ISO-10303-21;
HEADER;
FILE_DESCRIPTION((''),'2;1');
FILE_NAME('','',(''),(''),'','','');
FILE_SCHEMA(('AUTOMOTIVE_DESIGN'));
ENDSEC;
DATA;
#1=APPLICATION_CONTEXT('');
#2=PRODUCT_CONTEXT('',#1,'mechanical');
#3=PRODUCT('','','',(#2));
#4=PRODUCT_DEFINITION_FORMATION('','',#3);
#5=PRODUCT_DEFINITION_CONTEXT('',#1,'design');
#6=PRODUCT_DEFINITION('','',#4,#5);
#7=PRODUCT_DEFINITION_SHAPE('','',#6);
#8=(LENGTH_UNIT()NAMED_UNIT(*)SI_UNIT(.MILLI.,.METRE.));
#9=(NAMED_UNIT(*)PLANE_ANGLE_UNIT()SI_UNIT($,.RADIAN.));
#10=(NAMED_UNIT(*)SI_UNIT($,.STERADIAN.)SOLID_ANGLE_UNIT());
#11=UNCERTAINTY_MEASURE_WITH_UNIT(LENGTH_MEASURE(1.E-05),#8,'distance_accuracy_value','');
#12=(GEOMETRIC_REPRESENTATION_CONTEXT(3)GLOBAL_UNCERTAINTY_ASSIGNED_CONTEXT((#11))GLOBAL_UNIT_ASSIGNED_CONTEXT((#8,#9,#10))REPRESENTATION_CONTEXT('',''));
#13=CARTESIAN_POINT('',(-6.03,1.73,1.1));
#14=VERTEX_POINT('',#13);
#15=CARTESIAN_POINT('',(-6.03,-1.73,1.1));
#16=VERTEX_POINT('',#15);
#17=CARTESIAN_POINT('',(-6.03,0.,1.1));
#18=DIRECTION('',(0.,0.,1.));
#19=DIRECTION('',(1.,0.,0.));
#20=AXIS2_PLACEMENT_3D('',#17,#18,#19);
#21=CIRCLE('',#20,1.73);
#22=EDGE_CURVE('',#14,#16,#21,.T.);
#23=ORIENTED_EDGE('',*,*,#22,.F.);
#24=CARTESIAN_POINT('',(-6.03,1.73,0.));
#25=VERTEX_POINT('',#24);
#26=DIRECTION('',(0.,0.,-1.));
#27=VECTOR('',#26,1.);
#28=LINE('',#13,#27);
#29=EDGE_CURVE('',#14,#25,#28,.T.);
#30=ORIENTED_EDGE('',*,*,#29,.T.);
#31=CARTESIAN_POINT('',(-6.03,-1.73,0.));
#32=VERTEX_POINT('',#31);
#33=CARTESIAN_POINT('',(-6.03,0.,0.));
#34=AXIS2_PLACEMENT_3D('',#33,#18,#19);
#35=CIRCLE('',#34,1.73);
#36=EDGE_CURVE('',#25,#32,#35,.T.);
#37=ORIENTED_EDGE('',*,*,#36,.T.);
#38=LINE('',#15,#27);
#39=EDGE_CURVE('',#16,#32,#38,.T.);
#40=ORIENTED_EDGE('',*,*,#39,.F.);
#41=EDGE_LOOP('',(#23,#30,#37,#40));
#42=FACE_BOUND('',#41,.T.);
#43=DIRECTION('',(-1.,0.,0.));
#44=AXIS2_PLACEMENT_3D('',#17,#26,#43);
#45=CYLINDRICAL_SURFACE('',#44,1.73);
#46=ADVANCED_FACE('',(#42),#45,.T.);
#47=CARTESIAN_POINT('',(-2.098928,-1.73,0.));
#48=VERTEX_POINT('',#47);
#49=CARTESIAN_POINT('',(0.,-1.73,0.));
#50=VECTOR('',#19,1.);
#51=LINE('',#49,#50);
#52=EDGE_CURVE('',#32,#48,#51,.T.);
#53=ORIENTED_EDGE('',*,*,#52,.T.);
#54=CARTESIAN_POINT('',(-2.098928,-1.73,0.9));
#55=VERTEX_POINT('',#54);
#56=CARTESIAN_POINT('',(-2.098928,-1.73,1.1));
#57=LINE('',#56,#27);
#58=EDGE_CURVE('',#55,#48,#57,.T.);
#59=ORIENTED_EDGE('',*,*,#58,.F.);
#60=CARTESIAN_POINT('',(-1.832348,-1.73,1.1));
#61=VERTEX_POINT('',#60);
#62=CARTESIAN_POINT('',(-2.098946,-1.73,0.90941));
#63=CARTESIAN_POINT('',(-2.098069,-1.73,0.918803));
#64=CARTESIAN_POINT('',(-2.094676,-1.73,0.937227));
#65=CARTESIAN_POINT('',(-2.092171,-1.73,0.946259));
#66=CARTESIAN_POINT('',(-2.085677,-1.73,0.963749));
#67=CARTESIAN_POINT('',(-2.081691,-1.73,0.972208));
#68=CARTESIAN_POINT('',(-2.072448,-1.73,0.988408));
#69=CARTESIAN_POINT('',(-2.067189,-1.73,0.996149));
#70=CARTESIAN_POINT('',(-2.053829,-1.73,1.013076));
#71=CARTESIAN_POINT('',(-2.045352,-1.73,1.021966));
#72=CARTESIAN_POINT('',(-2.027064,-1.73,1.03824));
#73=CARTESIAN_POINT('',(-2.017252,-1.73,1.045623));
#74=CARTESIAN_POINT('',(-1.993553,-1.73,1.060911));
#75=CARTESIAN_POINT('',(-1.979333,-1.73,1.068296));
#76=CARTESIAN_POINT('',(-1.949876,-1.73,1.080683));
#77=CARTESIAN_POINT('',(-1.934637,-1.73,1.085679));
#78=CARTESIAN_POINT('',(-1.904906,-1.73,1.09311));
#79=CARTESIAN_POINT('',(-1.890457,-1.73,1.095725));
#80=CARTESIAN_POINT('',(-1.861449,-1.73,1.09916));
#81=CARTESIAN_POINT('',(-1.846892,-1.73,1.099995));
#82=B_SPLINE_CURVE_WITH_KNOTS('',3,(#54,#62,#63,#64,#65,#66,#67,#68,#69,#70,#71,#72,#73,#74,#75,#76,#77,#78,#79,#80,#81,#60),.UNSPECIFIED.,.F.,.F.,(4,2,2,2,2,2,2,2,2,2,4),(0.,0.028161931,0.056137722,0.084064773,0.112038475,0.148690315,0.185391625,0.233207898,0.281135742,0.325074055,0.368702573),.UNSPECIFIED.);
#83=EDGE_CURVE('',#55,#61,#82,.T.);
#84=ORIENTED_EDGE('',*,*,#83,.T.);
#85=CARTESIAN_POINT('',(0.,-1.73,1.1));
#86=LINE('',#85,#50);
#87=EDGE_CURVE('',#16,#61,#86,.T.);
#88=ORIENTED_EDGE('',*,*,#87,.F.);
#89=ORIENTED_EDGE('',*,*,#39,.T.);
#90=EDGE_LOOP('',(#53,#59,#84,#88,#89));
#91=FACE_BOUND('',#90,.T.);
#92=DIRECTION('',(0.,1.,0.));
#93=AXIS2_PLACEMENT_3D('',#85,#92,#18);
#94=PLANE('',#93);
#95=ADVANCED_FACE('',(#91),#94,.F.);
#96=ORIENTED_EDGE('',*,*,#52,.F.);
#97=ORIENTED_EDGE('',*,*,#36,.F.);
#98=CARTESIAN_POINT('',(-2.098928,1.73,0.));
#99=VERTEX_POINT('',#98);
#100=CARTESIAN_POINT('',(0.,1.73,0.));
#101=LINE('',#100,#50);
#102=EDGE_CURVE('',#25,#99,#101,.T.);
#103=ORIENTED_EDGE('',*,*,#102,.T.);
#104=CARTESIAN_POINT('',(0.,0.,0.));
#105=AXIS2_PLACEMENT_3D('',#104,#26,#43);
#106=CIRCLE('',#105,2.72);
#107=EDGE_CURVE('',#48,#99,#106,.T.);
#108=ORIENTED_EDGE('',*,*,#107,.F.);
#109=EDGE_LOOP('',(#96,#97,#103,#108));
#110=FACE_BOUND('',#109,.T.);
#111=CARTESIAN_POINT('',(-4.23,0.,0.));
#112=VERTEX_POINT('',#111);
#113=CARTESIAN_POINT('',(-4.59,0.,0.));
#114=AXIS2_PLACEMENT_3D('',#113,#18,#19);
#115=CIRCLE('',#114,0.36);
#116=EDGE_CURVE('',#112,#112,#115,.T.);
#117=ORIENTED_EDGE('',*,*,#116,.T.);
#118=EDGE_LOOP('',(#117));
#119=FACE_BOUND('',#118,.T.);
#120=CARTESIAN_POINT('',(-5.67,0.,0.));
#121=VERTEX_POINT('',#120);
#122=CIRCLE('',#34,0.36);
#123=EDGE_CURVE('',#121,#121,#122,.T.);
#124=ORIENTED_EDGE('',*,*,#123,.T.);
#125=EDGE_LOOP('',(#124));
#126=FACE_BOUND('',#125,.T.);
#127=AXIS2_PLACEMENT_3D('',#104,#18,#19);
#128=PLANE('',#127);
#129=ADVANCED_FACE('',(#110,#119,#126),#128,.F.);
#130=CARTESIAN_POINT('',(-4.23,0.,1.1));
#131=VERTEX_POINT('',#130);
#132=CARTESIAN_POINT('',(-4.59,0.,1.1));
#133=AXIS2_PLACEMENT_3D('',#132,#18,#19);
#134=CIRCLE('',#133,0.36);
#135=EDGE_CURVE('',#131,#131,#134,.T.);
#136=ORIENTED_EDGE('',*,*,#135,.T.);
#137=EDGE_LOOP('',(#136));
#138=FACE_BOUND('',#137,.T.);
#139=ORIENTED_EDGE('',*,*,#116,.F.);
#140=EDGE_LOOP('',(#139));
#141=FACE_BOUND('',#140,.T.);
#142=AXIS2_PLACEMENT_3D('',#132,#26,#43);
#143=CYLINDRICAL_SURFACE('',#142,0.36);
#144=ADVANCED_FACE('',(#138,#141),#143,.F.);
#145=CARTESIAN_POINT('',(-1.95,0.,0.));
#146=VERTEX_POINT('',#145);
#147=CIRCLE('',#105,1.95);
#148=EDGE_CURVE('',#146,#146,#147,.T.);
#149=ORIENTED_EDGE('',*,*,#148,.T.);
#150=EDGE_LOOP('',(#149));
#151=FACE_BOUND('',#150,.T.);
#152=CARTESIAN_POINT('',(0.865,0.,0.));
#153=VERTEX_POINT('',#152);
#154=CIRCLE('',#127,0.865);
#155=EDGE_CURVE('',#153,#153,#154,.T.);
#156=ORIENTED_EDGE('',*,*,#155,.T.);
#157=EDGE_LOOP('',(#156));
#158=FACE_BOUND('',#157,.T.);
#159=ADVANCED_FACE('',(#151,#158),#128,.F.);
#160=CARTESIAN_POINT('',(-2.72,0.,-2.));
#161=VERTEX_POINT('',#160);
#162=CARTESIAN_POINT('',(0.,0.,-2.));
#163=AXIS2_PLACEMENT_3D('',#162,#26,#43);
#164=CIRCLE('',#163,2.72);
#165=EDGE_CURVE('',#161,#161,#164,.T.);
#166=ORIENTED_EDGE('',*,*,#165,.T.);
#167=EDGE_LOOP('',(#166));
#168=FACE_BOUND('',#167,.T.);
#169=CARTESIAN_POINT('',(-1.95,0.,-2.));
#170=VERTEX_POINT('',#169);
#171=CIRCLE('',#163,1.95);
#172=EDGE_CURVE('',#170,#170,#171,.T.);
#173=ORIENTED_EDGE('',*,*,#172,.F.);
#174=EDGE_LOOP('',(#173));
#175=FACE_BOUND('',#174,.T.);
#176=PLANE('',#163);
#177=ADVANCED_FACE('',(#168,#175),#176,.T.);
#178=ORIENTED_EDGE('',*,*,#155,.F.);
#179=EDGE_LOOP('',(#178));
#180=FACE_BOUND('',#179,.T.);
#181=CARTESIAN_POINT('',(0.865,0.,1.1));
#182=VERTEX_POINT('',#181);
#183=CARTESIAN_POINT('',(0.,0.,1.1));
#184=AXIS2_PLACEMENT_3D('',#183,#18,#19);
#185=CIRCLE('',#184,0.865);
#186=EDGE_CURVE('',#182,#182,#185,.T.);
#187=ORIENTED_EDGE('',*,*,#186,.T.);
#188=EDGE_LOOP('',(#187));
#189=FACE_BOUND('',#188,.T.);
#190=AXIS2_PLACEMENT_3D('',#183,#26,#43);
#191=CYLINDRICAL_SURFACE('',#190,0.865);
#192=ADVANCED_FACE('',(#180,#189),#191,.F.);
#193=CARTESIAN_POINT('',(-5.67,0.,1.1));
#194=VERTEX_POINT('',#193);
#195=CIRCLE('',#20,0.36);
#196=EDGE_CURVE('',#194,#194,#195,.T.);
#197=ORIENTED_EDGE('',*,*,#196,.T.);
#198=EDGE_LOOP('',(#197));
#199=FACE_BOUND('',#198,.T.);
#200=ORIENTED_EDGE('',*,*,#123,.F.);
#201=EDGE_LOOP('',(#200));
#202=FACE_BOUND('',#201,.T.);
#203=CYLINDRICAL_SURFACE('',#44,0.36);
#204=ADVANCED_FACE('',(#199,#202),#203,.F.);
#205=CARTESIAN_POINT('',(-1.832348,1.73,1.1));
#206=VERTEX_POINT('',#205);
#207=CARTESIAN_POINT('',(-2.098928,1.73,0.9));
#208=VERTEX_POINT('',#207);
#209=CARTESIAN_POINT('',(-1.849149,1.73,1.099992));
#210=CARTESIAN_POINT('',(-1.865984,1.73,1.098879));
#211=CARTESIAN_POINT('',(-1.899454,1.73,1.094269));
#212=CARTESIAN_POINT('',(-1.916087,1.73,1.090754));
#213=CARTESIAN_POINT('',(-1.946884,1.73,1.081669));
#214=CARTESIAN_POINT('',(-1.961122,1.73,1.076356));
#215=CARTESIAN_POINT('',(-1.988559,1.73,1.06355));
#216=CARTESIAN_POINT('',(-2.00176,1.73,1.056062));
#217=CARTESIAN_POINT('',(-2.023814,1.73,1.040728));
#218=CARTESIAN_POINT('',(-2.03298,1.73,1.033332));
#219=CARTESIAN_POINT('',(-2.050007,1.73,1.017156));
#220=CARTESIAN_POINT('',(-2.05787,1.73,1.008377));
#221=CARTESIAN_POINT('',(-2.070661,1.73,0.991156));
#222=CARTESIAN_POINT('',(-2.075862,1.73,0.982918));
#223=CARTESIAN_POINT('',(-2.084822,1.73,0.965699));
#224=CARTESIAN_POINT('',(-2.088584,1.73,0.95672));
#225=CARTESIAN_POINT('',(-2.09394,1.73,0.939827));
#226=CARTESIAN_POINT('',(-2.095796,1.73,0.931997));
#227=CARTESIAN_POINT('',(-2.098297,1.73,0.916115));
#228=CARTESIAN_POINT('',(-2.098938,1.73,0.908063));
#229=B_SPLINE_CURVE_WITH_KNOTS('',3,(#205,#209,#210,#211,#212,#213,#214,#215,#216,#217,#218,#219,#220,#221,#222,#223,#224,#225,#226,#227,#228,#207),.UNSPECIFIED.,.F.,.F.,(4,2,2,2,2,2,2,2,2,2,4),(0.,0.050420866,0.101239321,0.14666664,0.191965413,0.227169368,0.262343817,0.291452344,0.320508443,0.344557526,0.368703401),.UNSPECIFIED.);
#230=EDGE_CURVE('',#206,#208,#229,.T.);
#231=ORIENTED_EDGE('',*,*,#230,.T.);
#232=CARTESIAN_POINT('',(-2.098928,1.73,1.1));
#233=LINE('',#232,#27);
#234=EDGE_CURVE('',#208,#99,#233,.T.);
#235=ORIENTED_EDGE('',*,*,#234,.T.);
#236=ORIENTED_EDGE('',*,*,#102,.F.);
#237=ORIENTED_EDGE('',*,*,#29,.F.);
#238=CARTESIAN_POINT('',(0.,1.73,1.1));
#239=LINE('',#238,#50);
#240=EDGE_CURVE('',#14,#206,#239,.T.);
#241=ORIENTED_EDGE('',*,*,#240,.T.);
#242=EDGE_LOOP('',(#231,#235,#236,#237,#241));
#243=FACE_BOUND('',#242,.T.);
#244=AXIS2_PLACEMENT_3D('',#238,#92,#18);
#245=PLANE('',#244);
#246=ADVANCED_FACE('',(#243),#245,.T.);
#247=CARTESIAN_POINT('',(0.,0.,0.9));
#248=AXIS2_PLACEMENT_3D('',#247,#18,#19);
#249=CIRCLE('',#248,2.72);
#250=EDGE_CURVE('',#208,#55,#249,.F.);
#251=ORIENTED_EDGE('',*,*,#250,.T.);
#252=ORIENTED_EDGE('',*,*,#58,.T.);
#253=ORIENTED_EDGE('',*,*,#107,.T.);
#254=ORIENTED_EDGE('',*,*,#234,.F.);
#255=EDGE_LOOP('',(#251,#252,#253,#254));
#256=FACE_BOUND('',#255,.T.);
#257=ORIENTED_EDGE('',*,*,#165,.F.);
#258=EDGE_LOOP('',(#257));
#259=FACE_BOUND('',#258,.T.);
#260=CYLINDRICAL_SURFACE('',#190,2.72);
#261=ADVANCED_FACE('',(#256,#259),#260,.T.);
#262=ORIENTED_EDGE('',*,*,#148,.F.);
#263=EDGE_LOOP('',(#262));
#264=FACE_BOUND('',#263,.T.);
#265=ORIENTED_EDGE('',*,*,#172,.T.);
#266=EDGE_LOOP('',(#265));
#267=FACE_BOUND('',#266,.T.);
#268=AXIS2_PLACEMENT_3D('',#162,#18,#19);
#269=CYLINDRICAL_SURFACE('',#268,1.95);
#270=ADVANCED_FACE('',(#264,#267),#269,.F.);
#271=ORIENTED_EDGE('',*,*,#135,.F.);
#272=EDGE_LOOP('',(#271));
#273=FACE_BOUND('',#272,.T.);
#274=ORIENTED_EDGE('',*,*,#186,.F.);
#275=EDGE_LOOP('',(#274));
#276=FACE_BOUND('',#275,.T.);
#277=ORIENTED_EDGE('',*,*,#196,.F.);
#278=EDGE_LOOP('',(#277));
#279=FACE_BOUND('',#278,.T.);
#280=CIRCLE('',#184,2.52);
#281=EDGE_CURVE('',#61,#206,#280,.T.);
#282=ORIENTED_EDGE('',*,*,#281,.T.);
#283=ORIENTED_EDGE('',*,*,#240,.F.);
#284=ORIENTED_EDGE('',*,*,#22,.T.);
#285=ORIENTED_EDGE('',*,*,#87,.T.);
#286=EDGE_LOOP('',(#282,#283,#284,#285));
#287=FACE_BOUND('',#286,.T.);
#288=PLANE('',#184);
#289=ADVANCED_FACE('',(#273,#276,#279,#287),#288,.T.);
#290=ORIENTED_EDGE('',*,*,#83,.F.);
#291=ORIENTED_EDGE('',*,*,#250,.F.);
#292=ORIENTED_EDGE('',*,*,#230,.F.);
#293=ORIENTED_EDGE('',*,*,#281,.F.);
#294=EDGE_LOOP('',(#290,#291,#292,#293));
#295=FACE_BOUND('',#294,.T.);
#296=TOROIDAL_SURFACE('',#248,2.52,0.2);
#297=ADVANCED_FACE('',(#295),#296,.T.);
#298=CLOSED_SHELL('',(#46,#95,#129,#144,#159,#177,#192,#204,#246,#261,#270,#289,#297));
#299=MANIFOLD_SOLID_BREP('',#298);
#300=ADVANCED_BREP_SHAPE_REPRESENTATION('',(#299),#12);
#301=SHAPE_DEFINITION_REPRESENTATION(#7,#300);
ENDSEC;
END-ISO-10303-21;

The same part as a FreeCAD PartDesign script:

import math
import FreeCAD as App
import Part
import Sketcher

V = App.Vector
Q = App.Units.Quantity


def edges_at(feature, points):
    """Names of the edges that pass closest to the given points."""
    edges = feature.Shape.Edges
    near = lambda p: min(range(len(edges)), key=lambda i: edges[i].distToShape(Part.Vertex(*p))[0])
    return sorted({f"Edge{near(p) + 1}" for p in points})

doc = App.newDocument("Part")
body = doc.addObject("PartDesign::Body", "Body")

sketch1 = body.newObject("Sketcher::SketchObject", "Sketch")
sketch1.AttachmentSupport = (doc.getObject("XY_Plane"), [""])
sketch1.MapMode = "FlatFace"
sketch1.addGeometry([
    Part.LineSegment(V(-2.1, 1.73, 0), V(-6.03, 1.73, 0)),
    Part.ArcOfCircle(Part.Circle(V(-6.03, 0, 0), V(0, 0, 1), 1.73), math.radians(90), math.radians(270)),
    Part.LineSegment(V(-6.03, -1.73, 0), V(-2.1, -1.73, 0)),
    Part.ArcOfCircle(Part.Circle(V(0, 0, 0), V(0, 0, 1), 2.72), math.radians(-141), math.radians(141)),
    Part.Circle(V(-6.03, 0, 0), V(0, 0, 1), 0.36),
    Part.Circle(V(-4.59, 0, 0), V(0, 0, 1), 0.36),
    Part.Circle(V(0, 0, 0), V(0, 0, 1), 0.86),
], False)
sketch1.addConstraint([
    Sketcher.Constraint("Tangent", 0, 2, 1, 1),
    Sketcher.Constraint("Tangent", 1, 2, 2, 1),
    Sketcher.Constraint("Coincident", 2, 2, 3, 1),
    Sketcher.Constraint("Coincident", 3, 2, 0, 1),
    Sketcher.Constraint("Horizontal", 0),
    Sketcher.Constraint("Horizontal", 2),
    Sketcher.Constraint("Coincident", 3, 3, -1, 1),
    Sketcher.Constraint("Coincident", 6, 3, -1, 1),
    Sketcher.Constraint("Coincident", 4, 3, 1, 3),
    Sketcher.Constraint("Equal", 4, 5),
    Sketcher.Constraint("PointOnObject", 1, 3, -1),
    Sketcher.Constraint("PointOnObject", 5, 3, -1),
    Sketcher.Constraint("Diameter", 4, Q("0.72 mm")),
    Sketcher.Constraint("Diameter", 6, Q("1.73 mm")),
    Sketcher.Constraint("Radius", 1, Q("1.73 mm")),
    Sketcher.Constraint("Radius", 3, Q("2.72 mm")),
    Sketcher.Constraint("DistanceX", 1, 3, -1, 1, Q("6.03 mm")),
    Sketcher.Constraint("DistanceX", 5, 3, -1, 1, Q("4.59 mm")),
])
pad1 = body.newObject("PartDesign::Pad", "Pad")
pad1.Profile = sketch1
pad1.Length = 1.1

sketch2 = body.newObject("Sketcher::SketchObject", "Sketch001")
sketch2.AttachmentSupport = (doc.getObject("XY_Plane"), [""])
sketch2.MapMode = "FlatFace"
sketch2.AttachmentOffset = App.Placement(V(0, 0, -2), App.Rotation())
sketch2.addGeometry([
    Part.Circle(V(0, 0, 0), V(0, 0, 1), 2.7),
    Part.Circle(V(0, 0, 0), V(0, 0, 1), 1.9),
], False)
sketch2.addConstraint([
    Sketcher.Constraint("Coincident", 0, 3, -1, 1),
    Sketcher.Constraint("Coincident", 1, 3, -1, 1),
    Sketcher.Constraint("Diameter", 1, Q("3.9 mm")),
    Sketcher.Constraint("Diameter", 0, Q("5.44 mm")),
])
pad2 = body.newObject("PartDesign::Pad", "Pad001")
pad2.Profile = sketch2
pad2.Length = 2
doc.recompute()

fillet = body.newObject("PartDesign::Fillet", "Fillet")
fillet.Base = (pad2, edges_at(pad2, [(2.72, 0, 1.1)]))
fillet.Radius = 0.2

doc.recompute()
